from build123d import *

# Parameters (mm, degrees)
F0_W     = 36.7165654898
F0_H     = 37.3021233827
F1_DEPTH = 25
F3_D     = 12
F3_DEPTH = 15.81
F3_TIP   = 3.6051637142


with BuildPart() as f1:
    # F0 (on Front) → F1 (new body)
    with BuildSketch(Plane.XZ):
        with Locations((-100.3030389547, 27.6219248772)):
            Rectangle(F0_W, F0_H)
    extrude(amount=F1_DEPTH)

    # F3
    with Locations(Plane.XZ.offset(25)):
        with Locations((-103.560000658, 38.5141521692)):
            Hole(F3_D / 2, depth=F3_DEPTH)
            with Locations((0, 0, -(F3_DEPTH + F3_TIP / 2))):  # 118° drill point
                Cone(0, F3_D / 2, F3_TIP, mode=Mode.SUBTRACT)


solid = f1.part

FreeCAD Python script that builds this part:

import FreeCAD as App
import Part
import Sketcher
from FreeCAD import Vector


def add_polygon(sketch, points):
    """Adds a closed chain of lines whose ends are joined by coincident constraints."""
    first, n = sketch.GeometryCount, len(points)
    for a, b in zip(points, points[1:] + points[:1]):
        sketch.addGeometry(Part.LineSegment(App.Vector(*a, 0), App.Vector(*b, 0)), False)
    for i in range(n):
        sketch.addConstraint(Sketcher.Constraint("Coincident", first + i, 2, first + (i + 1) % n, 1))

doc = App.newDocument("Part")
body = doc.addObject("PartDesign::Body", "Body")

# Sketch on XZ plane
sketch1 = doc.addObject("Sketcher::SketchObject", "Sketch")
body.addObject(sketch1)
sketch1.AttachmentSupport = (doc.XZ_Plane, [""])
sketch1.MapMode = "FlatFace"
add_polygon(sketch1, [(-119, 46), (-119, 9), (-82, 9), (-82, 46)])  # lines 0-3
sketch1.addConstraint([
    Sketcher.Constraint("Vertical", 0),
    Sketcher.Constraint("Horizontal", 1),
    Sketcher.Constraint("Vertical", 2),
    Sketcher.Constraint("Horizontal", 3),
    Sketcher.Constraint("DistanceX", 1, 1, 1, 2, 36.716565),
    Sketcher.Constraint("DistanceY", 0, 2, 0, 1, 37.302123),
    Sketcher.Constraint("DistanceX", 0, 2, -1, 1, 118.661322),
    Sketcher.Constraint("DistanceY", -1, 1, 0, 2, 8.970863),
])
pad1 = doc.addObject("PartDesign::Pad", "Pad")
body.addObject(pad1)
pad1.Profile = sketch1
pad1.Length = 25

# Sketch on XZ plane
sketch2 = doc.addObject("Sketcher::SketchObject", "Sketch001")
body.addObject(sketch2)
sketch2.AttachmentSupport = (doc.XZ_Plane, [""])
sketch2.MapMode = "FlatFace"
sketch2.AttachmentOffset = App.Placement(Vector(0, 0, 25), App.Rotation())
sketch2.addGeometry(Part.Circle(Vector(-104, 39, 0), Vector(0, 0, 1), 6), False)
sketch2.addConstraint([
    Sketcher.Constraint("Diameter", 0, 12.0),
    Sketcher.Constraint("DistanceX", 0, 3, -1, 1, 103.560001),
    Sketcher.Constraint("DistanceY", -1, 1, 0, 3, 38.514152),
])
doc.recompute()
hole = doc.addObject("PartDesign::Hole", "Hole")
body.addObject(hole)
hole.Profile = sketch2
hole.ThreadType = "None"
hole.Diameter = 12
hole.DepthType = "Dimension"
hole.Depth = 15.81
hole.DrillPoint = "Angled"
hole.DrillPointAngle = 118

doc.recompute()
